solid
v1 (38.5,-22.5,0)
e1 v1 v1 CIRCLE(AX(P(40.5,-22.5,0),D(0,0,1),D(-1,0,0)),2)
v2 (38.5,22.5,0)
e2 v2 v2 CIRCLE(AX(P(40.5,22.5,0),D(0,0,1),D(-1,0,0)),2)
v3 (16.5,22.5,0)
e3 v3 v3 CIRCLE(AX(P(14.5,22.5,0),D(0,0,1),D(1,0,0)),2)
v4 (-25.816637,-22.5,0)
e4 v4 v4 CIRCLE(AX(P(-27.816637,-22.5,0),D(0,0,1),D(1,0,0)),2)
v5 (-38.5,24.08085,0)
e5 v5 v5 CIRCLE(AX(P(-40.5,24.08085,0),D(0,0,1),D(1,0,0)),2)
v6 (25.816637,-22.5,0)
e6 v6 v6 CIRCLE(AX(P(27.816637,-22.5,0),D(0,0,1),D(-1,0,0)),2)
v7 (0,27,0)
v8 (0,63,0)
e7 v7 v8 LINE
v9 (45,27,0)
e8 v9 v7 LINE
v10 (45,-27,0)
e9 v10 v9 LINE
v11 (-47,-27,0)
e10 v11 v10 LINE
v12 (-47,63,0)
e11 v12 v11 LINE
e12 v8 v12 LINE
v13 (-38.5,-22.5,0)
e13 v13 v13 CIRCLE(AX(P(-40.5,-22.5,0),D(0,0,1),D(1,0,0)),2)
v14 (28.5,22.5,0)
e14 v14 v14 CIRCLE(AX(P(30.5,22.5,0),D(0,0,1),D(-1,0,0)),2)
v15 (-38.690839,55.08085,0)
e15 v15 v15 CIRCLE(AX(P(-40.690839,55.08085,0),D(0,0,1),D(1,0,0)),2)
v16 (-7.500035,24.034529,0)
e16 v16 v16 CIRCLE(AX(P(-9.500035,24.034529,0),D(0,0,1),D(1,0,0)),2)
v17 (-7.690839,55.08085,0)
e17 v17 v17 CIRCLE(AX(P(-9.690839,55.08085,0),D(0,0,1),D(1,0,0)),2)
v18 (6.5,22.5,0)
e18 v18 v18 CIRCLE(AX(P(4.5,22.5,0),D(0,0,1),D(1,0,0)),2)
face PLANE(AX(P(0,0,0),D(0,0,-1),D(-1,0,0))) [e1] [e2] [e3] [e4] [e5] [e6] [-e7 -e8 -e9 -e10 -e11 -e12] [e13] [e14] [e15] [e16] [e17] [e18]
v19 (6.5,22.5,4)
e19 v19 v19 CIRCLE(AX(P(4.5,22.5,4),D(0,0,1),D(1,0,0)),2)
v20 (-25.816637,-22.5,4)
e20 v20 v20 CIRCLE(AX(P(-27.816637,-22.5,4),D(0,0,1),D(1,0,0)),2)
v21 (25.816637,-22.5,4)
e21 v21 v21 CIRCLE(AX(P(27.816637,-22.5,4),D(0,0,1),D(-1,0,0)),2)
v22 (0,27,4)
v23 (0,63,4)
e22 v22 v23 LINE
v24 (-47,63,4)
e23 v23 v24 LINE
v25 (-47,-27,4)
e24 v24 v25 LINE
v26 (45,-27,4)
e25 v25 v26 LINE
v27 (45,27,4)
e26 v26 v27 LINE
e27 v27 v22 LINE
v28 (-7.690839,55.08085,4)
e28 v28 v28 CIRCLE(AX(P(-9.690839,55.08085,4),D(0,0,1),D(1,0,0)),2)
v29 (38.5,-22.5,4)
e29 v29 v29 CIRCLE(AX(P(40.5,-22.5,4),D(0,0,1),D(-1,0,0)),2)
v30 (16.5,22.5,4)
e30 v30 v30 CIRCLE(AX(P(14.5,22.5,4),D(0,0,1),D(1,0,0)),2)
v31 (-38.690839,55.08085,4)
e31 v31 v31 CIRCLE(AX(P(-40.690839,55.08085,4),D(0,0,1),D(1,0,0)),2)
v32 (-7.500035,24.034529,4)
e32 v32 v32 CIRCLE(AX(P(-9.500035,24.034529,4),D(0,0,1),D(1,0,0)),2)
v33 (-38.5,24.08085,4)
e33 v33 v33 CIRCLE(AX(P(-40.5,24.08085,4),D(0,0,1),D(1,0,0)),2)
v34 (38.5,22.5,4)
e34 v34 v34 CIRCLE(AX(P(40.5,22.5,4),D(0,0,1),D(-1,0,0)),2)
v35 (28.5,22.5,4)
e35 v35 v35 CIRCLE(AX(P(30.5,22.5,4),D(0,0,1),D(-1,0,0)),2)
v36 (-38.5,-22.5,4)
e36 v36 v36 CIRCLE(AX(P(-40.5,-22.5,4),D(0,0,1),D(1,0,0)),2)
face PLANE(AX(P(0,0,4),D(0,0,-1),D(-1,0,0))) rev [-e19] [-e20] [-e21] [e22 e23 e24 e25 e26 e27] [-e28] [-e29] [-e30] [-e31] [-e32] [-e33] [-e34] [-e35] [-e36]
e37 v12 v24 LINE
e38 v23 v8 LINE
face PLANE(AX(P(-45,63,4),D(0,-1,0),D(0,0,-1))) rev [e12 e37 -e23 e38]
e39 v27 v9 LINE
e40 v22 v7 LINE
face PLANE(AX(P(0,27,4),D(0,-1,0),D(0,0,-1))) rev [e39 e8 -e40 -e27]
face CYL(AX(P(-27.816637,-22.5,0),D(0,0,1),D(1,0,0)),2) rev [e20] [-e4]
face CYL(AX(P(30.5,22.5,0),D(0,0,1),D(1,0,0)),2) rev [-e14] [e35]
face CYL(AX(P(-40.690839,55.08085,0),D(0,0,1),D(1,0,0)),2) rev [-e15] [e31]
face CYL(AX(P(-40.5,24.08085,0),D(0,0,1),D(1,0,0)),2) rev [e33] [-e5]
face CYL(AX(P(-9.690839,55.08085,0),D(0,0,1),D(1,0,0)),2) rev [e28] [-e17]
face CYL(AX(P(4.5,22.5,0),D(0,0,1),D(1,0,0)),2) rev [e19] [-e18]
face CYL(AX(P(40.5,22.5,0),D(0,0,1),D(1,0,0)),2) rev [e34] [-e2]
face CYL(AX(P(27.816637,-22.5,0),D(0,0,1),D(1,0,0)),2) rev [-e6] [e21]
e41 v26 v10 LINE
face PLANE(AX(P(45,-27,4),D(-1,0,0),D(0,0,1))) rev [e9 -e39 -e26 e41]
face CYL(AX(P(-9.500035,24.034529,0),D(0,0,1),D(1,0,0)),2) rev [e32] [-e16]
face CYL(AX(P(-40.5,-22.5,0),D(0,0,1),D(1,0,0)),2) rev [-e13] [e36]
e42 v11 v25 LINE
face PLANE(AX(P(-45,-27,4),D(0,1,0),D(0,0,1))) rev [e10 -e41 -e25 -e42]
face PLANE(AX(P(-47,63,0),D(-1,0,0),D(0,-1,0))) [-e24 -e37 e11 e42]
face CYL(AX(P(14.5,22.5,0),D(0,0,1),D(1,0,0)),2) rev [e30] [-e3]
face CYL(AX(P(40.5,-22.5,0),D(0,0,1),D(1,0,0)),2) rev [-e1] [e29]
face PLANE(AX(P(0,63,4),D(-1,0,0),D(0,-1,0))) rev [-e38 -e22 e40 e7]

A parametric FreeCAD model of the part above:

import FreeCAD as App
import Part
import Sketcher
Q = App.Units.Quantity


def add_polygon(sketch, points):
    """Adds a closed chain of lines whose ends are joined by coincident constraints."""
    first, n = sketch.GeometryCount, len(points)
    for a, b in zip(points, points[1:] + points[:1]):
        sketch.addGeometry(Part.LineSegment(App.Vector(*a, 0), App.Vector(*b, 0)), False)
    for i in range(n):
        sketch.addConstraint(Sketcher.Constraint("Coincident", first + i, 2, first + (i + 1) % n, 1))

doc = App.newDocument("Part")
body = doc.addObject("PartDesign::Body", "Body")

# Sketch on XY plane
sketch1 = doc.addObject("Sketcher::SketchObject", "Sketch")
body.addObject(sketch1)
sketch1.AttachmentSupport = (doc.XY_Plane, [""])
sketch1.MapMode = "FlatFace"
add_polygon(sketch1, [(-45, 63), (-45, -27), (45, -27), (45, 27), (0, 27), (0, 63)])  # lines 0-5
sketch1.addConstraint([
    Sketcher.Constraint("Vertical", 0),
    Sketcher.Constraint("Horizontal", 1),
    Sketcher.Constraint("Vertical", 2),
    Sketcher.Constraint("Horizontal", 3),
    Sketcher.Constraint("Vertical", 4),
    Sketcher.Constraint("Horizontal", 5),
    Sketcher.Constraint("Symmetric", 0, 2, 2, 2, -1, 1),
    Sketcher.Constraint("PointOnObject", 3, 2, -2),
    Sketcher.Constraint("Equal", 1, 0),
    Sketcher.Constraint("DistanceX", 1, 1, 1, 2, Q("90 mm")),
    Sketcher.Constraint("DistanceY", 2, 1, 2, 2, Q("54 mm")),
])
pad1 = doc.addObject("PartDesign::Pad", "Pad")
body.addObject(pad1)
pad1.Profile = sketch1
pad1.Length = 4

# Sketch on XY plane
sketch2 = doc.addObject("Sketcher::SketchObject", "Sketch001")
body.addObject(sketch2)
sketch2.AttachmentSupport = (doc.XY_Plane, [""])
sketch2.MapMode = "FlatFace"
sketch2.AttachmentOffset = App.Placement(App.Vector(0, 0, 4), App.Rotation())
sketch2.addGeometry([
    Part.Circle(App.Vector(-40.5, -22.5, 0), App.Vector(0, 0, 1), 2),  # 0
    Part.Circle(App.Vector(-27.8, -22.5, 0), App.Vector(0, 0, 1), 2),  # 1
    Part.Circle(App.Vector(27.8, -22.5, 0), App.Vector(0, 0, 1), 2),  # 2
    Part.Circle(App.Vector(40.5, -22.5, 0), App.Vector(0, 0, 1), 2),  # 3
    Part.Circle(App.Vector(30.5, 22.5, 0), App.Vector(0, 0, 1), 2),  # 4
    Part.Circle(App.Vector(40.5, 22.5, 0), App.Vector(0, 0, 1), 2),  # 5
], False)
sketch2.addConstraint([
    Sketcher.Constraint("Equal", 0, 1),
    Sketcher.Constraint("Equal", 1, 2),
    Sketcher.Constraint("Equal", 2, 3),
    Sketcher.Constraint("Equal", 3, 4),
    Sketcher.Constraint("Equal", 4, 5),
    Sketcher.Constraint("Symmetric", 0, 3, 5, 3, -1, 1),
    Sketcher.Constraint("Symmetric", 1, 3, 2, 3, -2),
    Sketcher.Constraint("Symmetric", 0, 3, 3, 3, -2),
    Sketcher.Constraint("Horizontal", 0, 3, 1, 3),
    Sketcher.Constraint("Horizontal", 4, 3, 5, 3),
    Sketcher.Constraint("Diameter", 0, Q("4 mm")),
    Sketcher.Constraint("DistanceX", 0, 3, 3, 3, Q("81 mm")),
    Sketcher.Constraint("DistanceY", 2, 3, 4, 3, Q("45 mm")),
    Sketcher.Constraint("DistanceX", 4, 3, 3, 3, Q("10 mm")),
    Sketcher.Constraint("DistanceX", 1, 3, -1, 1, Q("27.816637 mm")),
])
pocket1 = doc.addObject("PartDesign::Pocket", "Pocket")
body.addObject(pocket1)
pocket1.Profile = sketch2
pocket1.Length = 4

# Sketch on XY plane
sketch3 = doc.addObject("Sketcher::SketchObject", "Sketch002")
body.addObject(sketch3)
sketch3.AttachmentSupport = (doc.XY_Plane, [""])
sketch3.MapMode = "FlatFace"
sketch3.AttachmentOffset = App.Placement(App.Vector(0, 0, 4), App.Rotation())
sketch3.addGeometry([
    Part.Circle(App.Vector(-40.5, 24.1, 0), App.Vector(0, 0, 1), 2),
    Part.Circle(App.Vector(-9.5, 24, 0), App.Vector(0, 0, 1), 2),
], False)
sketch3.addConstraint([
    Sketcher.Constraint("Equal", 0, 1),
    Sketcher.Constraint("Diameter", 0, Q("4 mm")),
    Sketcher.Constraint("DistanceX", 0, 3, -1, 1, Q("40.5 mm")),
    Sketcher.Constraint("DistanceY", -1, 1, 0, 3, Q("24.08085 mm")),
    Sketcher.Constraint("DistanceY", -1, 1, 1, 3, Q("24.034529 mm")),
    Sketcher.Constraint("DistanceX", 1, 3, -1, 1, Q("9.500035 mm")),
])
pocket2 = doc.addObject("PartDesign::Pocket", "Pocket001")
body.addObject(pocket2)
pocket2.Profile = sketch3
pocket2.Length = 4

# Sketch on XY plane
sketch4 = doc.addObject("Sketcher::SketchObject", "Sketch003")
body.addObject(sketch4)
sketch4.AttachmentSupport = (doc.XY_Plane, [""])
sketch4.MapMode = "FlatFace"
sketch4.AttachmentOffset = App.Placement(App.Vector(0, 0, 4), App.Rotation())
sketch4.addGeometry([
    Part.Circle(App.Vector(-40.7, 55.1, 0), App.Vector(0, 0, 1), 2),
    Part.Circle(App.Vector(-9.7, 55.1, 0), App.Vector(0, 0, 1), 2),
], False)
sketch4.addConstraint([
    Sketcher.Constraint("Equal", 0, 1),
    Sketcher.Constraint("Horizontal", 0, 3, 1, 3),
    Sketcher.Constraint("Diameter", 0, Q("4 mm")),
    Sketcher.Constraint("DistanceX", 0, 3, 1, 3, Q("31 mm")),
    Sketcher.Constraint("DistanceX", 0, 3, -1, 1, Q("40.690839 mm")),
    Sketcher.Constraint("DistanceY", -1, 1, 0, 3, Q("55.08085 mm")),
])
pocket3 = doc.addObject("PartDesign::Pocket", "Pocket002")
body.addObject(pocket3)
pocket3.Profile = sketch4
pocket3.Length = 4

# Sketch on XY plane
sketch5 = doc.addObject("Sketcher::SketchObject", "Sketch004")
body.addObject(sketch5)
sketch5.AttachmentSupport = (doc.XY_Plane, [""])
sketch5.MapMode = "FlatFace"
sketch5.AttachmentOffset = App.Placement(App.Vector(0, 0, 4), App.Rotation())
add_polygon(sketch5, [(-47, 63), (-47, -27), (-45, -27), (-45, 63)])  # lines 0-3
sketch5.addConstraint([
    Sketcher.Constraint("Vertical", 0),
    Sketcher.Constraint("Horizontal", 1),
    Sketcher.Constraint("Vertical", 2),
    Sketcher.Constraint("Horizontal", 3),
    Sketcher.Constraint("DistanceX", 1, 1, 1, 2, Q("2 mm")),
    Sketcher.Constraint("DistanceY", 0, 2, 0, 1, Q("90 mm")),
    Sketcher.Constraint("DistanceX", 0, 2, -1, 1, Q("47 mm")),
    Sketcher.Constraint("DistanceY", 0, 2, -1, 1, Q("27 mm")),
])
pad2 = doc.addObject("PartDesign::Pad", "Pad001")
body.addObject(pad2)
pad2.Profile = sketch5
pad2.Length = 4
pad2.Reversed = True

# Sketch on XY plane
sketch6 = doc.addObject("Sketcher::SketchObject", "Sketch005")
body.addObject(sketch6)
sketch6.AttachmentSupport = (doc.XY_Plane, [""])
sketch6.MapMode = "FlatFace"
sketch6.AttachmentOffset = App.Placement(App.Vector(0, 0, 4), App.Rotation())
sketch6.addGeometry([
    Part.Circle(App.Vector(4.5, 22.5, 0), App.Vector(0, 0, 1), 2),
    Part.Circle(App.Vector(14.5, 22.5, 0), App.Vector(0, 0, 1), 2),
], False)
sketch6.addConstraint([
    Sketcher.Constraint("Equal", 0, 1),
    Sketcher.Constraint("Horizontal", 0, 3, 1, 3),
    Sketcher.Constraint("Diameter", 0, Q("4 mm")),
    Sketcher.Constraint("DistanceX", 0, 3, 1, 3, Q("10 mm")),
    Sketcher.Constraint("DistanceX", -1, 1, 0, 3, Q("4.5 mm")),
    Sketcher.Constraint("DistanceY", -1, 1, 0, 3, Q("22.5 mm")),
])
pocket4 = doc.addObject("PartDesign::Pocket", "Pocket003")
body.addObject(pocket4)
pocket4.Profile = sketch6
pocket4.Length = 4

doc.recompute()
